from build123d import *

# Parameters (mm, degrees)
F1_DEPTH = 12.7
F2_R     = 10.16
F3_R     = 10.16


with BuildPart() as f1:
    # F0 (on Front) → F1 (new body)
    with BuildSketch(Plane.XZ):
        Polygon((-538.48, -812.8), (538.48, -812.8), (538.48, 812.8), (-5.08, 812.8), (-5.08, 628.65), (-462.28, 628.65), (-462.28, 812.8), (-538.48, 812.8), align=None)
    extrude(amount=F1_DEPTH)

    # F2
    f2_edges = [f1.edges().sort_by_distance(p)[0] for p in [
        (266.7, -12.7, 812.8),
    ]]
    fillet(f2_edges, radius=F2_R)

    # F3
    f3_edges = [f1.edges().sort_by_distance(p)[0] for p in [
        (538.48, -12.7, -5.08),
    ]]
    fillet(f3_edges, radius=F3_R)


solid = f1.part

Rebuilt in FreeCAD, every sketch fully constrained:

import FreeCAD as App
import Part
import Sketcher
from FreeCAD import Vector
Q = App.Units.Quantity


def edges_at(feature, points):
    """Names of the edges that pass closest to the given points."""
    edges = feature.Shape.Edges
    near = lambda p: min(range(len(edges)), key=lambda i: edges[i].distToShape(Part.Vertex(*p))[0])
    return sorted({f"Edge{near(p) + 1}" for p in points})

doc = App.newDocument("Part")
body = doc.addObject("PartDesign::Body", "Body")

# Sketch on XZ plane
sketch1 = doc.addObject("Sketcher::SketchObject", "Sketch")
body.addObject(sketch1)
sketch1.AttachmentSupport = (doc.XZ_Plane, [""])
sketch1.MapMode = "FlatFace"
sketch1.addGeometry(Part.LineSegment(Vector(-538, -813, 0), Vector(538, -813, 0)), False)
sketch1.addGeometry(Part.LineSegment(Vector(538, -813, 0), Vector(538, 813, 0)), False)
sketch1.addGeometry(Part.LineSegment(Vector(538, 813, 0), Vector(-5, 813, 0)), False)
sketch1.addGeometry(Part.LineSegment(Vector(-5, 813, 0), Vector(-5, 629, 0)), False)
sketch1.addGeometry(Part.LineSegment(Vector(-5, 629, 0), Vector(-462, 629, 0)), False)
sketch1.addGeometry(Part.LineSegment(Vector(-462, 629, 0), Vector(-462, 813, 0)), False)
sketch1.addGeometry(Part.LineSegment(Vector(-462, 813, 0), Vector(-538, 813, 0)), False)
sketch1.addGeometry(Part.LineSegment(Vector(-538, 813, 0), Vector(-538, -813, 0)), False)
sketch1.addConstraint(Sketcher.Constraint("Coincident", 0, 2, 1, 1))
sketch1.addConstraint(Sketcher.Constraint("Coincident", 1, 2, 2, 1))
sketch1.addConstraint(Sketcher.Constraint("Coincident", 2, 2, 3, 1))
sketch1.addConstraint(Sketcher.Constraint("Coincident", 3, 2, 4, 1))
sketch1.addConstraint(Sketcher.Constraint("Coincident", 4, 2, 5, 1))
sketch1.addConstraint(Sketcher.Constraint("Coincident", 5, 2, 6, 1))
sketch1.addConstraint(Sketcher.Constraint("Coincident", 6, 2, 7, 1))
sketch1.addConstraint(Sketcher.Constraint("Coincident", 7, 2, 0, 1))
sketch1.addConstraint(Sketcher.Constraint("Horizontal", 0))
sketch1.addConstraint(Sketcher.Constraint("Vertical", 1))
sketch1.addConstraint(Sketcher.Constraint("Horizontal", 2))
sketch1.addConstraint(Sketcher.Constraint("Vertical", 3))
sketch1.addConstraint(Sketcher.Constraint("Horizontal", 4))
sketch1.addConstraint(Sketcher.Constraint("Vertical", 5))
sketch1.addConstraint(Sketcher.Constraint("Horizontal", 6))
sketch1.addConstraint(Sketcher.Constraint("Vertical", 7))
sketch1.addConstraint(Sketcher.Constraint("Symmetric", 0, 2, 6, 2, -1, 1))
sketch1.addConstraint(Sketcher.Constraint("Horizontal", 2, 2, 5, 2))
sketch1.addConstraint(Sketcher.Constraint("DistanceX", 4, 2, 4, 1, Q("18 in")))
sketch1.addConstraint(Sketcher.Constraint("DistanceX", 6, 2, 6, 1, Q("3 in")))
sketch1.addConstraint(Sketcher.Constraint("DistanceY", 1, 1, 1, 2, Q("64 in")))
sketch1.addConstraint(Sketcher.Constraint("DistanceX", 0, 1, 0, 2, Q("42.4 in")))
sketch1.addConstraint(Sketcher.Constraint("DistanceY", 3, 2, 3, 1, Q("7.25 in")))
pad1 = doc.addObject("PartDesign::Pad", "Pad")
body.addObject(pad1)
pad1.Profile = sketch1
pad1.Length = Q("0.5 in")
doc.recompute()

fillet = doc.addObject("PartDesign::Fillet", "Fillet")
body.addObject(fillet)
fillet.Base = (pad1, edges_at(pad1, [(266.7, -12.7, 812.8)]))
fillet.Radius = Q("0.4 in")
doc.recompute()

fillet2 = doc.addObject("PartDesign::Fillet", "Fillet001")
body.addObject(fillet2)
fillet2.Base = (fillet, edges_at(fillet, [(538.48, -12.7, -5.08)]))
fillet2.Radius = Q("0.4 in")

doc.recompute()
